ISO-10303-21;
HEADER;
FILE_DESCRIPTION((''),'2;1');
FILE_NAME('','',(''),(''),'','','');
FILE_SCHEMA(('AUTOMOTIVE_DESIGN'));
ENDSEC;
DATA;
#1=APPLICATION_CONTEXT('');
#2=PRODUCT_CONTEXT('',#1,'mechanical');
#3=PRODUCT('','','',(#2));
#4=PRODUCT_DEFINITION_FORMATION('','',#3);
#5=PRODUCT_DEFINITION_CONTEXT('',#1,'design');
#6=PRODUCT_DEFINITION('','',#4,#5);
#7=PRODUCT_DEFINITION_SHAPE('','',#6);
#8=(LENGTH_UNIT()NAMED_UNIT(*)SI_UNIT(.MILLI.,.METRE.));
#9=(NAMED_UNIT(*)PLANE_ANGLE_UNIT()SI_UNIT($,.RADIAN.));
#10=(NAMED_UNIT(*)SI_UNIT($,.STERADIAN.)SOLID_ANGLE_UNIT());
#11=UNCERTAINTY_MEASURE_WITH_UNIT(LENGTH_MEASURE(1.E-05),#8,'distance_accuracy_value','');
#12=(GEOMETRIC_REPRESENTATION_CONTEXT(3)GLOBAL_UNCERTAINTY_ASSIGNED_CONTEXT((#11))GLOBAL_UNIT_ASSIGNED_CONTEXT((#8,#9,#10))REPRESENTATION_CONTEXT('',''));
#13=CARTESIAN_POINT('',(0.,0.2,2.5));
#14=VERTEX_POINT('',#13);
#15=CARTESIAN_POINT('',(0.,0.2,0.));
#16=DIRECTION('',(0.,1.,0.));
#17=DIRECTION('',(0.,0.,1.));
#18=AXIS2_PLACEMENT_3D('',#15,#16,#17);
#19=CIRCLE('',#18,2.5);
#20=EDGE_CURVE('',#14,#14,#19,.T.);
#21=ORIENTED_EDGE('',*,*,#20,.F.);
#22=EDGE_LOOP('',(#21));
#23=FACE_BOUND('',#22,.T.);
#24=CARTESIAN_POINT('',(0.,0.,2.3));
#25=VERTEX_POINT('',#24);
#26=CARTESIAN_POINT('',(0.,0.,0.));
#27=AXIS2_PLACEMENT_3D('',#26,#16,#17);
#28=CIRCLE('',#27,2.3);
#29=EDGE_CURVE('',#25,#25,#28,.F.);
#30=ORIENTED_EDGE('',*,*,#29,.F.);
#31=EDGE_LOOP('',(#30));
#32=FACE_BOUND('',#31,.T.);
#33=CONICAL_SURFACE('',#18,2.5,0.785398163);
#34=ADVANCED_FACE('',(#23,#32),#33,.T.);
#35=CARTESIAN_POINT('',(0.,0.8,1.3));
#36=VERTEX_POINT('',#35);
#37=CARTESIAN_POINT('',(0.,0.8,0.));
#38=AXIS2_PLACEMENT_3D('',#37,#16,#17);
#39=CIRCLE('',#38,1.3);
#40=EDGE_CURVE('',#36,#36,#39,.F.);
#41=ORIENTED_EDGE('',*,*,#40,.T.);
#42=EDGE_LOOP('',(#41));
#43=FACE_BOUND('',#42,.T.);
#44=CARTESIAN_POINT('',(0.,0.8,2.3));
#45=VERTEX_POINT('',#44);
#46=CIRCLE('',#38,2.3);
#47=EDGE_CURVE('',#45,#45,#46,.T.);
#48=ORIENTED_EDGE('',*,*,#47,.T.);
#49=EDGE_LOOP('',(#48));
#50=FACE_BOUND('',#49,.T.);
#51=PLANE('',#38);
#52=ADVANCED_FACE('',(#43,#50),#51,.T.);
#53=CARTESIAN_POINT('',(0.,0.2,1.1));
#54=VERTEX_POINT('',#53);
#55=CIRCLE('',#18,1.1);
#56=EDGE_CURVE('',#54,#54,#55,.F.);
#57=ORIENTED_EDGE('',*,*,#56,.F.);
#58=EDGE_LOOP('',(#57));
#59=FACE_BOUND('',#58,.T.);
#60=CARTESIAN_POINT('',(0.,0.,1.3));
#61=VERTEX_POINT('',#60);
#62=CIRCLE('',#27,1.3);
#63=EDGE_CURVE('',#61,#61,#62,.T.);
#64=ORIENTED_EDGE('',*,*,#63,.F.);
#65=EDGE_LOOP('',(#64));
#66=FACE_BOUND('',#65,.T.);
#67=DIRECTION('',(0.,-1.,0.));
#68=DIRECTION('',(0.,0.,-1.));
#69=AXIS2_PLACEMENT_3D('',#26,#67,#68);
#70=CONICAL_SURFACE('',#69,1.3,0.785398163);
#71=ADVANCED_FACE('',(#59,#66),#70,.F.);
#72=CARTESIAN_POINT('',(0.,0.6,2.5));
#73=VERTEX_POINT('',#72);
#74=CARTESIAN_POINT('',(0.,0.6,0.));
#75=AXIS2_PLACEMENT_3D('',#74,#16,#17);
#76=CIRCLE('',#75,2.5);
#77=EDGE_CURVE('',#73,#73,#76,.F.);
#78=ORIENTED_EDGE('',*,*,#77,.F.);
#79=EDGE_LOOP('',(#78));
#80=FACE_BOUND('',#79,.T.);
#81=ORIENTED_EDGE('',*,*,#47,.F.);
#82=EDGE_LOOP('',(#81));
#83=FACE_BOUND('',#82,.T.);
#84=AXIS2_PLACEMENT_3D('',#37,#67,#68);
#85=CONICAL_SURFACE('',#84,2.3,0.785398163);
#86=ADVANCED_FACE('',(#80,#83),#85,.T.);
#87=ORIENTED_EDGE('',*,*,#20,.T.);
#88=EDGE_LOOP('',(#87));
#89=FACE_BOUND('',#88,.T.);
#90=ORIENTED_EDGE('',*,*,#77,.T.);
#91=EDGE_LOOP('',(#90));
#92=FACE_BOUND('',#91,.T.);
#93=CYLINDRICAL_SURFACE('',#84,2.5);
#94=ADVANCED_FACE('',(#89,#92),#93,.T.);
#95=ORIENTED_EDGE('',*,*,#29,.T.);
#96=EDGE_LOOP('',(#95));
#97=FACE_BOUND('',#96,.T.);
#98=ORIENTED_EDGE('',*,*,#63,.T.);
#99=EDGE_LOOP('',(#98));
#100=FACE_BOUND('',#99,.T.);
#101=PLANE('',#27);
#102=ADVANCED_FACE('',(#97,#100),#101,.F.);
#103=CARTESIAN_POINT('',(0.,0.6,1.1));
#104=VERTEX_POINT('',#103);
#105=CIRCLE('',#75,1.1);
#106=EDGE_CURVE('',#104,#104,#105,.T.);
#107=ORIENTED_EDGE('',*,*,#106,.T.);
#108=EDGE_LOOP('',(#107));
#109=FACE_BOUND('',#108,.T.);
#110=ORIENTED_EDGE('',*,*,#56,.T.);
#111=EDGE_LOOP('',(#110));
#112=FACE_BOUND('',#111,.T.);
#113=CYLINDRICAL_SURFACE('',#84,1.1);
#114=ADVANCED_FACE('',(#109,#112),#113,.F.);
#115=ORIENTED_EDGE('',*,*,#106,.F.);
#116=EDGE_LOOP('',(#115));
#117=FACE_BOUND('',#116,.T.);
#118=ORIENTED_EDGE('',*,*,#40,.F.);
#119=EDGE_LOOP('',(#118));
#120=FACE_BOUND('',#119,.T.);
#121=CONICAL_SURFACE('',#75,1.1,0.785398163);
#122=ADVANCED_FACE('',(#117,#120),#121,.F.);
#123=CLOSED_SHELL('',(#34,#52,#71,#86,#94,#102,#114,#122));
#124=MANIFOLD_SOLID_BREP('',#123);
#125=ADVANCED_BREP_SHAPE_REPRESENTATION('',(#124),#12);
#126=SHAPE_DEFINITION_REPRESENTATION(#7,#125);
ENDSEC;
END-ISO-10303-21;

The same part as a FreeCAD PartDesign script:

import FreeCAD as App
import Part
import Sketcher
Q = App.Units.Quantity


def edges_at(feature, points):
    """Names of the edges that pass closest to the given points."""
    edges = feature.Shape.Edges
    near = lambda p: min(range(len(edges)), key=lambda i: edges[i].distToShape(Part.Vertex(*p))[0])
    return sorted({f"Edge{near(p) + 1}" for p in points})

doc = App.newDocument("Part")
body = doc.addObject("PartDesign::Body", "Body")

sketch1 = body.newObject("Sketcher::SketchObject", "Sketch")
sketch1.AttachmentSupport = (doc.getObject("XZ_Plane"), [""])
sketch1.MapMode = "FlatFace"
sketch1.addGeometry([
    Part.Circle(App.Vector(0, 0, 0), App.Vector(0, 0, 1), 2.5),
    Part.Circle(App.Vector(0, 0, 0), App.Vector(0, 0, 1), 1.1),
], False)
sketch1.addConstraint([
    Sketcher.Constraint("Coincident", 0, 3, -1, 1),
    Sketcher.Constraint("Coincident", 1, 3, -1, 1),
    Sketcher.Constraint("Diameter", 0, Q("5 mm")),
    Sketcher.Constraint("Diameter", 1, Q("2.2 mm")),
])
pad1 = body.newObject("PartDesign::Pad", "Pad")
pad1.Profile = sketch1
pad1.Length = 0.8
pad1.Reversed = True
doc.recompute()

chamfer = body.newObject("PartDesign::Chamfer", "Chamfer")
chamfer.Base = (pad1, edges_at(pad1, [
    (-2.5, 0, 0),
    (-2.5, 0.8, 0),
    (-1.1, 0, 0),
    (-1.1, 0.8, 0),
]))
chamfer.Size = 0.2

doc.recompute()
